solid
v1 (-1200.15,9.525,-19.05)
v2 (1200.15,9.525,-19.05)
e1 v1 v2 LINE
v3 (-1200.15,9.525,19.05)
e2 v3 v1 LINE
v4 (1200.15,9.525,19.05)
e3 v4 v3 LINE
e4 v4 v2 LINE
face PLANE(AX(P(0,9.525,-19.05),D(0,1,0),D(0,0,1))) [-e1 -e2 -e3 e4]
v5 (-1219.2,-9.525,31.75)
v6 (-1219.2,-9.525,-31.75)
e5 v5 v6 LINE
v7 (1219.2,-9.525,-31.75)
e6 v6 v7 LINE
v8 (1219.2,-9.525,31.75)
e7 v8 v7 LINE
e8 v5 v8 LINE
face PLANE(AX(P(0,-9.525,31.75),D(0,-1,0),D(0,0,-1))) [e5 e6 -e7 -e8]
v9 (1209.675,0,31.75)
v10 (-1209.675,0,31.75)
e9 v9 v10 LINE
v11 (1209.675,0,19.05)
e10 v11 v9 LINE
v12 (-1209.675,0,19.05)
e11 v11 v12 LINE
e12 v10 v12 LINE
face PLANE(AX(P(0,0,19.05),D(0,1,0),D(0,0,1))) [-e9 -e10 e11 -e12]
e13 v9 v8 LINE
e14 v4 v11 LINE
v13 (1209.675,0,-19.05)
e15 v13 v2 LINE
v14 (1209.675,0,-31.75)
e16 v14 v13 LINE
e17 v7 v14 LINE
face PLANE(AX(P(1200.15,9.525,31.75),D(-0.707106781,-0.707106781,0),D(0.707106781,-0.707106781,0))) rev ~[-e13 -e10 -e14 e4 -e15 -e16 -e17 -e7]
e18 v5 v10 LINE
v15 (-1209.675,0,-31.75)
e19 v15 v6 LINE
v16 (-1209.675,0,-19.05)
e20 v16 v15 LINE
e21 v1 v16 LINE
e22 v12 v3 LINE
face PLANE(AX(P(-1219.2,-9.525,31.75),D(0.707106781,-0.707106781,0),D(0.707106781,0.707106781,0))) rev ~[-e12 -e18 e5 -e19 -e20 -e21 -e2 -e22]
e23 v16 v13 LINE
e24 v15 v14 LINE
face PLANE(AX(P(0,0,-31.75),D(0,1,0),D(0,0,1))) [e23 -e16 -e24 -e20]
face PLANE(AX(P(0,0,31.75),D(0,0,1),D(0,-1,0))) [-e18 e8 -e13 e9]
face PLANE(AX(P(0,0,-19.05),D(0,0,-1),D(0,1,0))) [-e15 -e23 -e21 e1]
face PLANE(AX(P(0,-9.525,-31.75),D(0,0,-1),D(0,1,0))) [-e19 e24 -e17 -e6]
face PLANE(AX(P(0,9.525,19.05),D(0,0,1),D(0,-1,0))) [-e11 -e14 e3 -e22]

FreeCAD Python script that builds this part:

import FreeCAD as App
import Part
import Sketcher
Q = App.Units.Quantity

doc = App.newDocument("Part")
body = doc.addObject("PartDesign::Body", "Body")

sketch1 = body.newObject("Sketcher::SketchObject", "Sketch")
sketch1.AttachmentSupport = (doc.getObject("YZ_Plane"), [""])
sketch1.MapMode = "FlatFace"
sketch1.addGeometry(Part.LineSegment(App.Vector(0, 32, 0), App.Vector(-10, 32, 0)), False)
sketch1.addGeometry(Part.LineSegment(App.Vector(-10, 32, 0), App.Vector(-10, -32, 0)), False)
sketch1.addGeometry(Part.LineSegment(App.Vector(-10, -32, 0), App.Vector(0, -32, 0)), False)
sketch1.addGeometry(Part.LineSegment(App.Vector(0, -32, 0), App.Vector(0, -19, 0)), False)
sketch1.addGeometry(Part.LineSegment(App.Vector(0, -19, 0), App.Vector(10, -19, 0)), False)
sketch1.addGeometry(Part.LineSegment(App.Vector(10, -19, 0), App.Vector(10, 19, 0)), False)
sketch1.addGeometry(Part.LineSegment(App.Vector(10, 19, 0), App.Vector(0, 19, 0)), False)
sketch1.addGeometry(Part.LineSegment(App.Vector(0, 19, 0), App.Vector(0, 32, 0)), False)
sketch1.addConstraint(Sketcher.Constraint("Coincident", 0, 2, 1, 1))
sketch1.addConstraint(Sketcher.Constraint("Coincident", 1, 2, 2, 1))
sketch1.addConstraint(Sketcher.Constraint("Coincident", 2, 2, 3, 1))
sketch1.addConstraint(Sketcher.Constraint("Coincident", 3, 2, 4, 1))
sketch1.addConstraint(Sketcher.Constraint("Coincident", 4, 2, 5, 1))
sketch1.addConstraint(Sketcher.Constraint("Coincident", 5, 2, 6, 1))
sketch1.addConstraint(Sketcher.Constraint("Coincident", 6, 2, 7, 1))
sketch1.addConstraint(Sketcher.Constraint("Coincident", 7, 2, 0, 1))
sketch1.addConstraint(Sketcher.Constraint("Horizontal", 0))
sketch1.addConstraint(Sketcher.Constraint("Vertical", 1))
sketch1.addConstraint(Sketcher.Constraint("Horizontal", 2))
sketch1.addConstraint(Sketcher.Constraint("Vertical", 3))
sketch1.addConstraint(Sketcher.Constraint("Horizontal", 4))
sketch1.addConstraint(Sketcher.Constraint("Vertical", 5))
sketch1.addConstraint(Sketcher.Constraint("Horizontal", 6))
sketch1.addConstraint(Sketcher.Constraint("Vertical", 7))
sketch1.addConstraint(Sketcher.Constraint("Symmetric", 3, 2, 6, 2, -1, 1))
sketch1.addConstraint(Sketcher.Constraint("Symmetric", 2, 2, 7, 2, -1))
sketch1.addConstraint(Sketcher.Constraint("Equal", 2, 4))
sketch1.addConstraint(Sketcher.Constraint("DistanceY", 1, 2, 1, 1, Q("2.5 in")))
sketch1.addConstraint(Sketcher.Constraint("DistanceY", 3, 1, 3, 2, Q("0.5 in")))
sketch1.addConstraint(Sketcher.Constraint("DistanceX", 0, 2, 0, 1, Q("0.375 in")))
pad1 = body.newObject("PartDesign::Pad", "Pad")
pad1.Profile = sketch1
pad1.Type = "TwoLengths"
pad1.Length = Q("48 in")
pad1.Length2 = Q("48 in")

sketch2 = body.newObject("Sketcher::SketchObject", "Sketch001")
sketch2.AttachmentSupport = (doc.getObject("XY_Plane"), [""])
sketch2.MapMode = "FlatFace"
sketch2.AttachmentOffset = App.Placement(App.Vector(0, 0, 1.25 * 25.4), App.Rotation())
sketch2.addGeometry(Part.LineSegment(App.Vector(-1200, 10, 0), App.Vector(-1219, 10, 0)), False)
sketch2.addGeometry(Part.LineSegment(App.Vector(-1219, 10, 0), App.Vector(-1219, -10, 0)), False)
sketch2.addGeometry(Part.LineSegment(App.Vector(-1219, -10, 0), App.Vector(-1200, 10, 0)), False)
sketch2.addGeometry(Part.LineSegment(App.Vector(1200, 10, 0), App.Vector(1219, -10, 0)), False)
sketch2.addGeometry(Part.LineSegment(App.Vector(1219, -10, 0), App.Vector(1219, 10, 0)), False)
sketch2.addGeometry(Part.LineSegment(App.Vector(1219, 10, 0), App.Vector(1200, 10, 0)), False)
sketch2.addConstraint(Sketcher.Constraint("Coincident", 0, 2, 1, 1))
sketch2.addConstraint(Sketcher.Constraint("Coincident", 1, 2, 2, 1))
sketch2.addConstraint(Sketcher.Constraint("Coincident", 2, 2, 0, 1))
sketch2.addConstraint(Sketcher.Constraint("Coincident", 3, 2, 4, 1))
sketch2.addConstraint(Sketcher.Constraint("Coincident", 4, 2, 5, 1))
sketch2.addConstraint(Sketcher.Constraint("Coincident", 5, 2, 3, 1))
sketch2.addConstraint(Sketcher.Constraint("Horizontal", 0))
sketch2.addConstraint(Sketcher.Constraint("Vertical", 1))
sketch2.addConstraint(Sketcher.Constraint("Vertical", 4))
sketch2.addConstraint(Sketcher.Constraint("Horizontal", 5))
sketch2.addConstraint(Sketcher.Constraint("Symmetric", 0, 2, 3, 2, -1, 1))
sketch2.addConstraint(Sketcher.Constraint("Symmetric", 2, 2, 5, 2, -2))
sketch2.addConstraint(Sketcher.Constraint("Perpendicular", 2, 3))
sketch2.addConstraint(Sketcher.Constraint("Horizontal", 1, 2, 3, 2))
sketch2.addConstraint(Sketcher.Constraint("DistanceX", 0, 2, -1, 1, Q("48 in")))
sketch2.addConstraint(Sketcher.Constraint("DistanceX", 0, 2, 0, 1, Q("0.75 in")))
pocket1 = body.newObject("PartDesign::Pocket", "Pocket")
pocket1.Profile = sketch2
pocket1.Type = "ThroughAll"

doc.recompute()
